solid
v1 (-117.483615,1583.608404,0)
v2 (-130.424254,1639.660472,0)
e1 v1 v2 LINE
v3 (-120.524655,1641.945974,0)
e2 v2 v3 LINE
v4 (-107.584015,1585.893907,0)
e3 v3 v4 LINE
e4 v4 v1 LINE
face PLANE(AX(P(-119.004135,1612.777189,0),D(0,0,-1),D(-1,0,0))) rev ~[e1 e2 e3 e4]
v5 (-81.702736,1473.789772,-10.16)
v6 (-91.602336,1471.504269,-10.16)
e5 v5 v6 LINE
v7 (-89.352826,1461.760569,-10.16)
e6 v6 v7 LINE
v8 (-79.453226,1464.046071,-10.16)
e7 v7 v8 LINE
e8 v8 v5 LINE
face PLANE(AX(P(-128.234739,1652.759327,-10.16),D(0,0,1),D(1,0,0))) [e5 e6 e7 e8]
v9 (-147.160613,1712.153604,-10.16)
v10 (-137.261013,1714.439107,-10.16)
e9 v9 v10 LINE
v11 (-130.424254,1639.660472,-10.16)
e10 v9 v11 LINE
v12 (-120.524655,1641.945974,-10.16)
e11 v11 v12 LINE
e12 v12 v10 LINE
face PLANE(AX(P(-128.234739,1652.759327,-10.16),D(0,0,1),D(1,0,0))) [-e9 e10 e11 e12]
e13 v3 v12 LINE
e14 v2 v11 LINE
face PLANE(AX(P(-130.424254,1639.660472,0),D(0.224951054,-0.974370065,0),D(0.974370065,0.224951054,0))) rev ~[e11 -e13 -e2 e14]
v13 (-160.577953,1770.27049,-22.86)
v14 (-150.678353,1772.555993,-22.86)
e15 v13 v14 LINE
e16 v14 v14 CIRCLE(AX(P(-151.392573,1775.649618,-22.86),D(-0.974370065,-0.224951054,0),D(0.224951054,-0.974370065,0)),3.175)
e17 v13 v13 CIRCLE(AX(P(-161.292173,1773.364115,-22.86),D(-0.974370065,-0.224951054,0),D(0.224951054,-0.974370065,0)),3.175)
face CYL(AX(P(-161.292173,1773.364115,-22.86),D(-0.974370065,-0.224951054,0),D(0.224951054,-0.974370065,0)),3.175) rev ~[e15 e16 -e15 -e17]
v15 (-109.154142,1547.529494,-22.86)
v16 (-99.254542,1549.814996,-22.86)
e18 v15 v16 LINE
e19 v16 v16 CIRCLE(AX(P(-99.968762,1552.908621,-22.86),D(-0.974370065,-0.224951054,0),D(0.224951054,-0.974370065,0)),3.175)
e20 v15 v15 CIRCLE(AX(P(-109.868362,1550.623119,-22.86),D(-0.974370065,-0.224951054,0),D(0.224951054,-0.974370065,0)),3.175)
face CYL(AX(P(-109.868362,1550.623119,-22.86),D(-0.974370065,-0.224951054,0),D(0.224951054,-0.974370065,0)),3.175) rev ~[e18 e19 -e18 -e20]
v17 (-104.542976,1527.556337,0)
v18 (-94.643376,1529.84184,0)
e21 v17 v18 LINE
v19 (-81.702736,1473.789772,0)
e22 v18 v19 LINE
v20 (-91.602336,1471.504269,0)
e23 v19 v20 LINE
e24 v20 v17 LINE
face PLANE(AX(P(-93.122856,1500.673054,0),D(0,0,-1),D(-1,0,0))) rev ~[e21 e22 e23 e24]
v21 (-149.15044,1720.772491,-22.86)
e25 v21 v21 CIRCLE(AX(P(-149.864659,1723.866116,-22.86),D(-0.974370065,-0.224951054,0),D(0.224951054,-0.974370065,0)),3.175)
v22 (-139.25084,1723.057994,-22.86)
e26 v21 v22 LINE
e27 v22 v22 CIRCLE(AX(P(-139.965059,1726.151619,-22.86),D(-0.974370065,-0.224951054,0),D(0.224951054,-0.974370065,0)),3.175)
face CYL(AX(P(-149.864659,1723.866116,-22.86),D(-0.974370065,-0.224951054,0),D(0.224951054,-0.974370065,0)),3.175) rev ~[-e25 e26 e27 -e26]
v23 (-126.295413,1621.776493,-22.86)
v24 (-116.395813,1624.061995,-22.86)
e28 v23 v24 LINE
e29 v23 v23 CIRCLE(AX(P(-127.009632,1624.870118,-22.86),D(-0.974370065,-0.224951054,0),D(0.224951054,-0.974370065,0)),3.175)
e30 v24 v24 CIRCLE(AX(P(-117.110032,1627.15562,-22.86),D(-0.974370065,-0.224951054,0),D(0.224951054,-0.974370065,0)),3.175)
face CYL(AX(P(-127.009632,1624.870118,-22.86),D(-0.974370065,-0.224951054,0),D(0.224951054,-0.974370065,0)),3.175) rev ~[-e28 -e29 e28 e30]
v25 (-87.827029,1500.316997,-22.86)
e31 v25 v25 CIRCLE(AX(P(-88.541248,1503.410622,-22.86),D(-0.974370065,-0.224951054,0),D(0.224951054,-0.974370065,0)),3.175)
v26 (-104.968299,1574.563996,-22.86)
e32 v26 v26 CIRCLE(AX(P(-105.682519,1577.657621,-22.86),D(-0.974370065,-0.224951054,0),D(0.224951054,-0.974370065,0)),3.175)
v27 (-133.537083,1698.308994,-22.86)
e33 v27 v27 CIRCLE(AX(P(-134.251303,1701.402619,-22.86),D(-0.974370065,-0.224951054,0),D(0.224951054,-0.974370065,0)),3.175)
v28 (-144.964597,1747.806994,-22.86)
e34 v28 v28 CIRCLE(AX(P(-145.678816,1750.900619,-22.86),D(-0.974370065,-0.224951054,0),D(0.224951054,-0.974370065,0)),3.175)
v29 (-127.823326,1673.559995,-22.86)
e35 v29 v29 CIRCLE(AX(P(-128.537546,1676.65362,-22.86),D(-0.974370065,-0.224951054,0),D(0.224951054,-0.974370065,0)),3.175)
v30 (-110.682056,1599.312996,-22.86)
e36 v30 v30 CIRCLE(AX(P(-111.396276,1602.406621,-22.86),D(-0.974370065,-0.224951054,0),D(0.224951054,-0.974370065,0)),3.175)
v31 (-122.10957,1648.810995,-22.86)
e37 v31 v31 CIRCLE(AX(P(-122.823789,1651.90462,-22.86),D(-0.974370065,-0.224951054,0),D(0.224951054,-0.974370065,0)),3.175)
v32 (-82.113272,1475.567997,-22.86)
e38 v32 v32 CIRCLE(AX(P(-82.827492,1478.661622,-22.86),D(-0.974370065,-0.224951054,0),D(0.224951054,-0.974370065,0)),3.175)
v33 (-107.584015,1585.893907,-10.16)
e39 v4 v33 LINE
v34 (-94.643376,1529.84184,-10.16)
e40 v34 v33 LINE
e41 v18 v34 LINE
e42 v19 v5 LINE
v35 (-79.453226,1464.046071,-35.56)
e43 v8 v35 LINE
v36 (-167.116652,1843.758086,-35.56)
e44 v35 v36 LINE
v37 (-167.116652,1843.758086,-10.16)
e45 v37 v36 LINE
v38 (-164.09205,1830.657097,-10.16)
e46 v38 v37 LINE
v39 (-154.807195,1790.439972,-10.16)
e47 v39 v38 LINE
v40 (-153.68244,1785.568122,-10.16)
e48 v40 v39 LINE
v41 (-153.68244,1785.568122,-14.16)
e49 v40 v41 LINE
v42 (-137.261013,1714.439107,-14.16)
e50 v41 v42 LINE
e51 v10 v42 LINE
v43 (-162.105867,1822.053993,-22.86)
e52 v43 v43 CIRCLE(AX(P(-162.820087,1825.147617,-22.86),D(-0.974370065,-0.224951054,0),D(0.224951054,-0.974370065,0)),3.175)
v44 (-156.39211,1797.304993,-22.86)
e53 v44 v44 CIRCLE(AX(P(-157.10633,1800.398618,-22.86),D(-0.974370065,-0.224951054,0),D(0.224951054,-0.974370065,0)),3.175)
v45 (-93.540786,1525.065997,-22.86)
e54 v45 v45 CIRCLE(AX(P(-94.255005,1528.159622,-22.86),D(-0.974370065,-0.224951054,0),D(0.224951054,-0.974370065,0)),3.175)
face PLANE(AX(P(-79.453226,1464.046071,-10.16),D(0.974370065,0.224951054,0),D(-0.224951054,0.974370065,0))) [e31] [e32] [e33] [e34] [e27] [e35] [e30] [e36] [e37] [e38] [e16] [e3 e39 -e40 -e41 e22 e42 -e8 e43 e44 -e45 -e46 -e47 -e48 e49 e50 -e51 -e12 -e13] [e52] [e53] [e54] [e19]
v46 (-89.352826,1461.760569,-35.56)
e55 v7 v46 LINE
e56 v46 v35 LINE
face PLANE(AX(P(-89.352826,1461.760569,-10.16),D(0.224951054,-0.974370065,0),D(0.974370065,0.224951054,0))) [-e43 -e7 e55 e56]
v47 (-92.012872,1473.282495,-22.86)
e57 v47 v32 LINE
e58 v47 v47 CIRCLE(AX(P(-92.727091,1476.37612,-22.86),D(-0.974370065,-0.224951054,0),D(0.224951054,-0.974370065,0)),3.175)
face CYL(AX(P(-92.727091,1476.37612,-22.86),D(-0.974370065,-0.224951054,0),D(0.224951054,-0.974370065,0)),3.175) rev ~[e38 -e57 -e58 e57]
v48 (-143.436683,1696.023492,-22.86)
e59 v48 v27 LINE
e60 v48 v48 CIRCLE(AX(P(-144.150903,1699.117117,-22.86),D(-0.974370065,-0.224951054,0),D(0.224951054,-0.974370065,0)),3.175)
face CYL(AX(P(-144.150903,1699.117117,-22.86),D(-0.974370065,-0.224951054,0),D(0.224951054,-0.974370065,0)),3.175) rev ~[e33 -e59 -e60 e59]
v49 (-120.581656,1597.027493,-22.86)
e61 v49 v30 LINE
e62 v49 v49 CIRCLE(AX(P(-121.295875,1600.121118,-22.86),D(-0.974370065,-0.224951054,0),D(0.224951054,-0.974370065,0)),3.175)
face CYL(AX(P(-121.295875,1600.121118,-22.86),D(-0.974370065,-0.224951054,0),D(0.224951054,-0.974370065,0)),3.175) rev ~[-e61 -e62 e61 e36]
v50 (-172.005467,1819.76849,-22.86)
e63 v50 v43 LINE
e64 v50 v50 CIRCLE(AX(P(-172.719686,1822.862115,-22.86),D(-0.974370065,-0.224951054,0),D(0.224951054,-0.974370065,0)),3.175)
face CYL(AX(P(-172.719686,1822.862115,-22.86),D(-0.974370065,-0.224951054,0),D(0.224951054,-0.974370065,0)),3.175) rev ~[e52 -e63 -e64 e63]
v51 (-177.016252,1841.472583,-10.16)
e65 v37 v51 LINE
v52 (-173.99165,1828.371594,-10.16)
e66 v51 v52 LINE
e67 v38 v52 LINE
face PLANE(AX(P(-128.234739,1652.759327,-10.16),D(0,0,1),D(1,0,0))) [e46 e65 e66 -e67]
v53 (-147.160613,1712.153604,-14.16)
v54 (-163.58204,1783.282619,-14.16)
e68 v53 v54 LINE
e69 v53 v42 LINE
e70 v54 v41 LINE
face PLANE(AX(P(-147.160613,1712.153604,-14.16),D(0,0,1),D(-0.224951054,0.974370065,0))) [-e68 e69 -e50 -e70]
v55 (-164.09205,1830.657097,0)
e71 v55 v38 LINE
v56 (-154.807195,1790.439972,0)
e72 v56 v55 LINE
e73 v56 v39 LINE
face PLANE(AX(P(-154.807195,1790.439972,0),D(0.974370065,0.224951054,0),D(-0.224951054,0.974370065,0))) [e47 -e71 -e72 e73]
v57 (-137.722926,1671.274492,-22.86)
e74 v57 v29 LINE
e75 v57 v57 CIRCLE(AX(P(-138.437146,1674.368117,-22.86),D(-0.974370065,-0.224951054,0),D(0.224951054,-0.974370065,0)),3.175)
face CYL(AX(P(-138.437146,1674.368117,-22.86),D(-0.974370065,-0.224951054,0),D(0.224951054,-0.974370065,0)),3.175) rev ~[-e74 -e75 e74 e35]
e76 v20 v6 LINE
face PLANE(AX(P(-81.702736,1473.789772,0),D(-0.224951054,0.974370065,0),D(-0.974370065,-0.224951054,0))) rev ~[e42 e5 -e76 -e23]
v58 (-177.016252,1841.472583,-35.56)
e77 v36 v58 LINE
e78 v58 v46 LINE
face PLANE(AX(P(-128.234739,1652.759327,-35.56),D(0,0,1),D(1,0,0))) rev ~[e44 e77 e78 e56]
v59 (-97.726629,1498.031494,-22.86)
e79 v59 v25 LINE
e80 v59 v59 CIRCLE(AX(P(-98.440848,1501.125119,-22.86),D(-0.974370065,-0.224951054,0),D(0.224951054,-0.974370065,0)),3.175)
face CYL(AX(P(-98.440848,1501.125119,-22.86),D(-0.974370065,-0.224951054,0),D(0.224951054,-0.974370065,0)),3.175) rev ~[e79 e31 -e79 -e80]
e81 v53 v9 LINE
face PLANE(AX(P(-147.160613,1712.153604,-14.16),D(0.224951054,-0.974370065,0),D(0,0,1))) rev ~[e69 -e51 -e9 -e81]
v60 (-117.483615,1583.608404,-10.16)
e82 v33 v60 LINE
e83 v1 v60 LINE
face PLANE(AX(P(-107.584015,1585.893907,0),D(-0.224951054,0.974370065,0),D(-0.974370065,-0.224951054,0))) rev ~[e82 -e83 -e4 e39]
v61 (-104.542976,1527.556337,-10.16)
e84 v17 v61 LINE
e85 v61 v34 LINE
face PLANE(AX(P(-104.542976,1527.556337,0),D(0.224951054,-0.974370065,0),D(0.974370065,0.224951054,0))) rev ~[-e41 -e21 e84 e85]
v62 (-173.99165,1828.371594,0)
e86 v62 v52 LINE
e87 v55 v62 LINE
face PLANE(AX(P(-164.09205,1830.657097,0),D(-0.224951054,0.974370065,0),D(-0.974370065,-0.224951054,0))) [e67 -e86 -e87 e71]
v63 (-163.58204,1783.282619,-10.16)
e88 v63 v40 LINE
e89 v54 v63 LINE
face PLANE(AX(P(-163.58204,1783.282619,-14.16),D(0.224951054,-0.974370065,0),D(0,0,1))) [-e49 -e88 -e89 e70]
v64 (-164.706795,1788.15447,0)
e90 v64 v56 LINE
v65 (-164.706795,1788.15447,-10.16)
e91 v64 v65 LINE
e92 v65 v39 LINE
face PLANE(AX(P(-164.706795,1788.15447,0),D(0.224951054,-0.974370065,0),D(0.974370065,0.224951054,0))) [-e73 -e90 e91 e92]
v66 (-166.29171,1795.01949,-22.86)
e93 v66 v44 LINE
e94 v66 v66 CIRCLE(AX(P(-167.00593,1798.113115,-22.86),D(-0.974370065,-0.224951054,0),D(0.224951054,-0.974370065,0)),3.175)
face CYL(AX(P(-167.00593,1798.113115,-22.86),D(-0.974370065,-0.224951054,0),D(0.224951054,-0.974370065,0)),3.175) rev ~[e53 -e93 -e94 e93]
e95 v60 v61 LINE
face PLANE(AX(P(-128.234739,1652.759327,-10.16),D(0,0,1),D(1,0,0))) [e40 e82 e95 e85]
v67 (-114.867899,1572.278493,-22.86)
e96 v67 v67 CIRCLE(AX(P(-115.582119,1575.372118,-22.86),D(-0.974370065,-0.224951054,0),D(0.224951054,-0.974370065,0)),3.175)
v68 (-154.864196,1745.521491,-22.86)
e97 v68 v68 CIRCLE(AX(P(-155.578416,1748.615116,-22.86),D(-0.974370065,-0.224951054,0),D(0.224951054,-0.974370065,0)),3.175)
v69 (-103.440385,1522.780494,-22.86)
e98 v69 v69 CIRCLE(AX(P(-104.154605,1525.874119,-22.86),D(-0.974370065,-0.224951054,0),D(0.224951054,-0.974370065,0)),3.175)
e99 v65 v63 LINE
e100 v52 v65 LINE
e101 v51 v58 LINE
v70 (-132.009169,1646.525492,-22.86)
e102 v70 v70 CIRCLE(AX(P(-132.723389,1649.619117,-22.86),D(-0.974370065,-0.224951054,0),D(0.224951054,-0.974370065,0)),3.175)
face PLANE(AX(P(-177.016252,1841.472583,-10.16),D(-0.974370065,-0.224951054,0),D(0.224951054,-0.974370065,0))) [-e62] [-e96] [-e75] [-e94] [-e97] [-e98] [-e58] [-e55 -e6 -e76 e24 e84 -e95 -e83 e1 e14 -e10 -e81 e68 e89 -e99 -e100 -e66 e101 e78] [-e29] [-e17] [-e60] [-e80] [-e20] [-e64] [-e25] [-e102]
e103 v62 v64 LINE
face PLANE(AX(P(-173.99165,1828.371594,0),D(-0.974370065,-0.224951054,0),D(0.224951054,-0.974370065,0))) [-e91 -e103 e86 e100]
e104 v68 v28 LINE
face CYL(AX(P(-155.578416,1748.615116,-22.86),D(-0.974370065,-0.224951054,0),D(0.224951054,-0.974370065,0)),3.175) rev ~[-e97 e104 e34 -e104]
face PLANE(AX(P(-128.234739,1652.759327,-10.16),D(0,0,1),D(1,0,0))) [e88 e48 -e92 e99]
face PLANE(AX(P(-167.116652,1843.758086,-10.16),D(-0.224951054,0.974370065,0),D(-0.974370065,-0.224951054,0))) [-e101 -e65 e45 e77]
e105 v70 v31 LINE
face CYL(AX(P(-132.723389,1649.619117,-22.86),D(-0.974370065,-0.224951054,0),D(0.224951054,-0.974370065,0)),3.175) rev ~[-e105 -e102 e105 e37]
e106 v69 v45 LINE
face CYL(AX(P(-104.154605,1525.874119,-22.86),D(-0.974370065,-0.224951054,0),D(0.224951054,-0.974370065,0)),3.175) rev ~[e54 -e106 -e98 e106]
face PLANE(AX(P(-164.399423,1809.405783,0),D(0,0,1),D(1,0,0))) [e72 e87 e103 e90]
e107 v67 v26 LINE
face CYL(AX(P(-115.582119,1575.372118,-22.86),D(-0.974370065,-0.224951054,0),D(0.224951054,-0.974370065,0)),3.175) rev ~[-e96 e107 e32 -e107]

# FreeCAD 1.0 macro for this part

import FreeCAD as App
import Part
import Sketcher

V = App.Vector
Q = App.Units.Quantity

doc = App.newDocument("Part")
params = doc.addObject("Spreadsheet::Sheet", "Params")
for row, (alias, value) in enumerate([
    ("sketch1_length", "0.4 in"),
    ("pad1_length", "0.4 in"),
    ("sketch2_length", "0.4 in"),
    ("pad2_length", "0.4 in"),
    ("sketch3_length", "0.4 in"),
    ("sketch3_length2", "1.625 in"),
    ("pad3_length", "0.4 in"),
    ("sketch4_length", "0.4 in"),
    ("pad4_length", "1 in"),
    ("sketch5_diameter", "0.25 in"),
], start=1):
    params.set(f"A{row}", alias)
    params.set(f"B{row}", "=" + value)
    params.setAlias(f"B{row}", alias)

body = doc.addObject("PartDesign::Body", "Body")

sketch1 = body.newObject("Sketcher::SketchObject", "Sketch")
sketch1.AttachmentSupport = (doc.getObject("XY_Plane"), [""])
sketch1.MapMode = "FlatFace"
sketch1.addGeometry([
    Part.LineSegment(V(-108, 1586, 0), V(-121, 1642, 0)),
    Part.LineSegment(V(-121, 1642, 0), V(-130, 1640, 0)),
    Part.LineSegment(V(-130, 1640, 0), V(-117, 1584, 0)),
    Part.LineSegment(V(-117, 1584, 0), V(-108, 1586, 0)),
], False)
sketch1.addConstraint([
    Sketcher.Constraint("Coincident", 0, 2, 1, 1),
    Sketcher.Constraint("Coincident", 1, 2, 2, 1),
    Sketcher.Constraint("Coincident", 2, 2, 3, 1),
    Sketcher.Constraint("Coincident", 3, 2, 0, 1),
    Sketcher.Constraint("Perpendicular", 0, 1),
    Sketcher.Constraint("Perpendicular", 1, 2),
    Sketcher.Constraint("Perpendicular", 2, 3),
    Sketcher.Constraint("Angle", 0, Q("103 deg")),
    Sketcher.Constraint("Distance", 1, Q("0.4 in")),
    Sketcher.Constraint("DistanceY", -1, 1, 1, 2, Q("1639.660472 mm")),
    Sketcher.Constraint("DistanceX", 1, 2, 2, 2, Q("12.940639 mm")),
    Sketcher.Constraint("DistanceX", 0, 2, -1, 1, Q("120.524655 mm")),
])
sketch1.setExpression("Constraints[8]", "Params.sketch1_length")
pad1 = body.newObject("PartDesign::Pad", "Pad")
pad1.Profile = sketch1
pad1.setExpression("Length", "Params.pad1_length")
pad1.Reversed = True
body2 = doc.addObject("PartDesign::Body", "Body001")

sketch2 = body2.newObject("Sketcher::SketchObject", "Sketch001")
sketch2.AttachmentSupport = (doc.getObject("XY_Plane001"), [""])
sketch2.MapMode = "FlatFace"
sketch2.addGeometry([
    Part.LineSegment(V(-95, 1530, 0), V(-105, 1528, 0)),
    Part.LineSegment(V(-105, 1528, 0), V(-92, 1472, 0)),
    Part.LineSegment(V(-92, 1472, 0), V(-82, 1474, 0)),
    Part.LineSegment(V(-82, 1474, 0), V(-95, 1530, 0)),
], False)
sketch2.addConstraint([
    Sketcher.Constraint("Coincident", 0, 2, 1, 1),
    Sketcher.Constraint("Coincident", 1, 2, 2, 1),
    Sketcher.Constraint("Coincident", 2, 2, 3, 1),
    Sketcher.Constraint("Coincident", 3, 2, 0, 1),
    Sketcher.Constraint("Perpendicular", 0, 1),
    Sketcher.Constraint("Perpendicular", 1, 2),
    Sketcher.Constraint("Perpendicular", 2, 3),
    Sketcher.Constraint("Angle", 0, Q("-167 deg")),
    Sketcher.Constraint("Distance", 0, Q("0.4 in")),
    Sketcher.Constraint("DistanceY", -1, 1, 1, 2, Q("1471.504269 mm")),
    Sketcher.Constraint("DistanceY", -1, 1, 3, 2, Q("1529.84184 mm")),
    Sketcher.Constraint("DistanceX", 0, 2, -1, 1, Q("104.542976 mm")),
])
sketch2.setExpression("Constraints[8]", "Params.sketch2_length")
pad2 = body2.newObject("PartDesign::Pad", "Pad001")
pad2.Profile = sketch2
pad2.setExpression("Length", "Params.pad2_length")
pad2.Reversed = True
body3 = doc.addObject("PartDesign::Body", "Body002")

sketch3 = body3.newObject("Sketcher::SketchObject", "Sketch002")
sketch3.AttachmentSupport = (doc.getObject("XY_Plane002"), [""])
sketch3.MapMode = "FlatFace"
sketch3.addGeometry([
    Part.LineSegment(V(-165, 1788, 0), V(-155, 1790, 0)),
    Part.LineSegment(V(-155, 1790, 0), V(-164, 1831, 0)),
    Part.LineSegment(V(-164, 1831, 0), V(-174, 1828, 0)),
    Part.LineSegment(V(-174, 1828, 0), V(-165, 1788, 0)),
], False)
sketch3.addConstraint([
    Sketcher.Constraint("Coincident", 0, 2, 1, 1),
    Sketcher.Constraint("Coincident", 1, 2, 2, 1),
    Sketcher.Constraint("Coincident", 2, 2, 3, 1),
    Sketcher.Constraint("Coincident", 3, 2, 0, 1),
    Sketcher.Constraint("Perpendicular", 0, 1),
    Sketcher.Constraint("Perpendicular", 1, 2),
    Sketcher.Constraint("Perpendicular", 2, 3),
    Sketcher.Constraint("Angle", 0, Q("13 deg")),
    Sketcher.Constraint("Distance", 0, Q("0.4 in")),
    Sketcher.Constraint("Distance", 1, Q("1.625 in")),
    Sketcher.Constraint("DistanceX", 1, 2, -1, 1, Q("164.09205 mm")),
    Sketcher.Constraint("DistanceY", -1, 1, 3, 2, Q("1788.15447 mm")),
])
sketch3.setExpression("Constraints[8]", "Params.sketch3_length")
sketch3.setExpression("Constraints[9]", "Params.sketch3_length2")
pad3 = body3.newObject("PartDesign::Pad", "Pad002")
pad3.Profile = sketch3
pad3.setExpression("Length", "Params.pad3_length")
pad3.Reversed = True
body.AllowCompound = True
doc.recompute()

boolean = body.newObject("PartDesign::Boolean", "Boolean")
boolean.Type = "Fuse"
boolean.addObjects([body2])
doc.recompute()

boolean2 = body.newObject("PartDesign::Boolean", "Boolean001")
boolean2.Type = "Fuse"
boolean2.addObjects([body3])

sketch4 = body.newObject("Sketcher::SketchObject", "Sketch003")
sketch4.AttachmentSupport = (doc.getObject("XY_Plane"), [""])
sketch4.MapMode = "FlatFace"
sketch4.AttachmentOffset = App.Placement(V(0, 0, -0.4 * 25.4), App.Rotation())
sketch4.addGeometry([
    Part.LineSegment(V(-89, 1462, 0), V(-177, 1841, 0)),
    Part.LineSegment(V(-177, 1841, 0), V(-167, 1844, 0)),
    Part.LineSegment(V(-167, 1844, 0), V(-79, 1464, 0)),
    Part.LineSegment(V(-79, 1464, 0), V(-89, 1462, 0)),
], False)
sketch4.addConstraint([
    Sketcher.Constraint("Coincident", 0, 2, 1, 1),
    Sketcher.Constraint("Coincident", 1, 2, 2, 1),
    Sketcher.Constraint("Coincident", 2, 2, 3, 1),
    Sketcher.Constraint("Coincident", 3, 2, 0, 1),
    Sketcher.Constraint("Perpendicular", 0, 1),
    Sketcher.Constraint("Perpendicular", 1, 2),
    Sketcher.Constraint("Perpendicular", 2, 3),
    Sketcher.Constraint("Angle", 0, Q("103 deg")),
    Sketcher.Constraint("Distance", 1, Q("0.4 in")),
    Sketcher.Constraint("Distance", 0, Q("389.7 mm")),
    Sketcher.Constraint("DistanceX", 0, 2, -1, 1, Q("177.016252 mm")),
    Sketcher.Constraint("DistanceY", -1, 1, 2, 2, Q("1464.046071 mm")),
])
sketch4.setExpression("Constraints[8]", "Params.sketch4_length")
pad4 = body.newObject("PartDesign::Pad", "Pad003")
pad4.Profile = sketch4
pad4.setExpression("Length", "Params.pad4_length")
pad4.Reversed = True

sketch5 = body.newObject("Sketcher::SketchObject", "Sketch004")
sketch5.Placement = App.Placement(V(235.565522, 54.384586, 0), App.Rotation(V(0, 0, 1), V(-0.224951054, 0.974370065, 0), V(-0.974370065, -0.224951054, 0), "ZXY"))
sketch5.addGeometry([
    Part.Circle(V(-22.9, 1459.4, 0), V(0, 0, 1), 3.2),
    Part.Circle(V(-22.9, 1484.8, 0), V(0, 0, 1), 3.2),
    Part.Circle(V(-22.9, 1510.2, 0), V(0, 0, 1), 3.2),
    Part.Circle(V(-22.9, 1535.6, 0), V(0, 0, 1), 3.2),
    Part.Circle(V(-22.9, 1561, 0), V(0, 0, 1), 3.2),
    Part.Circle(V(-22.9, 1586.4, 0), V(0, 0, 1), 3.2),
    Part.Circle(V(-22.9, 1611.8, 0), V(0, 0, 1), 3.2),
    Part.Circle(V(-22.9, 1637.2, 0), V(0, 0, 1), 3.2),
    Part.Circle(V(-22.9, 1662.6, 0), V(0, 0, 1), 3.2),
    Part.Circle(V(-22.9, 1688, 0), V(0, 0, 1), 3.2),
    Part.Circle(V(-22.9, 1713.4, 0), V(0, 0, 1), 3.2),
    Part.Circle(V(-22.9, 1738.8, 0), V(0, 0, 1), 3.2),
    Part.Circle(V(-22.9, 1764.2, 0), V(0, 0, 1), 3.2),
    Part.Circle(V(-22.9, 1789.6, 0), V(0, 0, 1), 3.2),
    Part.Circle(V(-22.9, 1815, 0), V(0, 0, 1), 3.2),
    Part.LineSegment(V(-14.2, 1774.4, 0), V(-14.2, 1701.4, 0)),
    Part.LineSegment(V(-14.2, 1701.4, 0), V(15.1, 1701.4, 0)),
    Part.LineSegment(V(15.1, 1701.4, 0), V(15.1, 1774.4, 0)),
    Part.LineSegment(V(15.1, 1774.4, 0), V(-14.2, 1774.4, 0)),
], False)
sketch5.addConstraint([
    Sketcher.Constraint("Coincident", 15, 2, 16, 1),
    Sketcher.Constraint("Coincident", 16, 2, 17, 1),
    Sketcher.Constraint("Coincident", 17, 2, 18, 1),
    Sketcher.Constraint("Coincident", 18, 2, 15, 1),
    Sketcher.Constraint("Vertical", 15),
    Sketcher.Constraint("Horizontal", 16),
    Sketcher.Constraint("Vertical", 17),
    Sketcher.Constraint("Horizontal", 18),
    Sketcher.Constraint("Equal", 0, 1),
    Sketcher.Constraint("Equal", 1, 2),
    Sketcher.Constraint("Equal", 2, 3),
    Sketcher.Constraint("Equal", 3, 4),
    Sketcher.Constraint("Equal", 4, 5),
    Sketcher.Constraint("Equal", 5, 6),
    Sketcher.Constraint("Equal", 6, 7),
    Sketcher.Constraint("Equal", 7, 8),
    Sketcher.Constraint("Equal", 8, 9),
    Sketcher.Constraint("Equal", 9, 10),
    Sketcher.Constraint("Equal", 10, 11),
    Sketcher.Constraint("Equal", 11, 12),
    Sketcher.Constraint("Equal", 12, 13),
    Sketcher.Constraint("Equal", 13, 14),
    Sketcher.Constraint("Vertical", 0, 3, 1, 3),
    Sketcher.Constraint("Vertical", 1, 3, 2, 3),
    Sketcher.Constraint("Vertical", 2, 3, 3, 3),
    Sketcher.Constraint("Vertical", 3, 3, 4, 3),
    Sketcher.Constraint("Vertical", 4, 3, 5, 3),
    Sketcher.Constraint("Vertical", 5, 3, 6, 3),
    Sketcher.Constraint("Vertical", 6, 3, 7, 3),
    Sketcher.Constraint("Vertical", 7, 3, 8, 3),
    Sketcher.Constraint("Vertical", 8, 3, 9, 3),
    Sketcher.Constraint("Vertical", 9, 3, 10, 3),
    Sketcher.Constraint("Vertical", 10, 3, 11, 3),
    Sketcher.Constraint("Vertical", 11, 3, 12, 3),
    Sketcher.Constraint("Vertical", 12, 3, 13, 3),
    Sketcher.Constraint("Vertical", 13, 3, 14, 3),
    Sketcher.Constraint("Diameter", 0, Q("0.25 in")),
    Sketcher.Constraint("DistanceY", 0, 3, 1, 3, Q("1 in")),
    Sketcher.Constraint("DistanceY", 1, 3, 2, 3, Q("1 in")),
    Sketcher.Constraint("DistanceY", 2, 3, 3, 3, Q("1 in")),
    Sketcher.Constraint("DistanceY", 3, 3, 4, 3, Q("1 in")),
    Sketcher.Constraint("DistanceY", 4, 3, 5, 3, Q("1 in")),
    Sketcher.Constraint("DistanceY", 5, 3, 6, 3, Q("1 in")),
    Sketcher.Constraint("DistanceY", 6, 3, 7, 3, Q("1 in")),
    Sketcher.Constraint("DistanceY", 7, 3, 8, 3, Q("1 in")),
    Sketcher.Constraint("DistanceY", 8, 3, 9, 3, Q("1 in")),
    Sketcher.Constraint("DistanceY", 9, 3, 10, 3, Q("1 in")),
    Sketcher.Constraint("DistanceY", 10, 3, 11, 3, Q("1 in")),
    Sketcher.Constraint("DistanceY", 11, 3, 12, 3, Q("1 in")),
    Sketcher.Constraint("DistanceY", 12, 3, 13, 3, Q("1 in")),
    Sketcher.Constraint("DistanceY", 13, 3, 14, 3, Q("1 in")),
    Sketcher.Constraint("DistanceX", 0, 3, -1, 1, Q("0.9 in")),
    Sketcher.Constraint("DistanceY", 15, 2, 15, 1, Q("73 mm")),
    Sketcher.Constraint("DistanceX", 16, 1, 16, 2, Q("29.218679 mm")),
    Sketcher.Constraint("DistanceX", 15, 2, -1, 1, Q("14.16 mm")),
    Sketcher.Constraint("DistanceY", 15, 2, 10, 3, Q("12.020599 mm")),
    Sketcher.Constraint("DistanceY", -1, 1, 0, 3, Q("1459.395753 mm")),
])
sketch5.setExpression("Constraints[36]", "Params.sketch5_diameter")
pocket1 = body.newObject("PartDesign::Pocket", "Pocket")
pocket1.Profile = sketch5
pocket1.Type = "ThroughAll"

doc.recompute()
